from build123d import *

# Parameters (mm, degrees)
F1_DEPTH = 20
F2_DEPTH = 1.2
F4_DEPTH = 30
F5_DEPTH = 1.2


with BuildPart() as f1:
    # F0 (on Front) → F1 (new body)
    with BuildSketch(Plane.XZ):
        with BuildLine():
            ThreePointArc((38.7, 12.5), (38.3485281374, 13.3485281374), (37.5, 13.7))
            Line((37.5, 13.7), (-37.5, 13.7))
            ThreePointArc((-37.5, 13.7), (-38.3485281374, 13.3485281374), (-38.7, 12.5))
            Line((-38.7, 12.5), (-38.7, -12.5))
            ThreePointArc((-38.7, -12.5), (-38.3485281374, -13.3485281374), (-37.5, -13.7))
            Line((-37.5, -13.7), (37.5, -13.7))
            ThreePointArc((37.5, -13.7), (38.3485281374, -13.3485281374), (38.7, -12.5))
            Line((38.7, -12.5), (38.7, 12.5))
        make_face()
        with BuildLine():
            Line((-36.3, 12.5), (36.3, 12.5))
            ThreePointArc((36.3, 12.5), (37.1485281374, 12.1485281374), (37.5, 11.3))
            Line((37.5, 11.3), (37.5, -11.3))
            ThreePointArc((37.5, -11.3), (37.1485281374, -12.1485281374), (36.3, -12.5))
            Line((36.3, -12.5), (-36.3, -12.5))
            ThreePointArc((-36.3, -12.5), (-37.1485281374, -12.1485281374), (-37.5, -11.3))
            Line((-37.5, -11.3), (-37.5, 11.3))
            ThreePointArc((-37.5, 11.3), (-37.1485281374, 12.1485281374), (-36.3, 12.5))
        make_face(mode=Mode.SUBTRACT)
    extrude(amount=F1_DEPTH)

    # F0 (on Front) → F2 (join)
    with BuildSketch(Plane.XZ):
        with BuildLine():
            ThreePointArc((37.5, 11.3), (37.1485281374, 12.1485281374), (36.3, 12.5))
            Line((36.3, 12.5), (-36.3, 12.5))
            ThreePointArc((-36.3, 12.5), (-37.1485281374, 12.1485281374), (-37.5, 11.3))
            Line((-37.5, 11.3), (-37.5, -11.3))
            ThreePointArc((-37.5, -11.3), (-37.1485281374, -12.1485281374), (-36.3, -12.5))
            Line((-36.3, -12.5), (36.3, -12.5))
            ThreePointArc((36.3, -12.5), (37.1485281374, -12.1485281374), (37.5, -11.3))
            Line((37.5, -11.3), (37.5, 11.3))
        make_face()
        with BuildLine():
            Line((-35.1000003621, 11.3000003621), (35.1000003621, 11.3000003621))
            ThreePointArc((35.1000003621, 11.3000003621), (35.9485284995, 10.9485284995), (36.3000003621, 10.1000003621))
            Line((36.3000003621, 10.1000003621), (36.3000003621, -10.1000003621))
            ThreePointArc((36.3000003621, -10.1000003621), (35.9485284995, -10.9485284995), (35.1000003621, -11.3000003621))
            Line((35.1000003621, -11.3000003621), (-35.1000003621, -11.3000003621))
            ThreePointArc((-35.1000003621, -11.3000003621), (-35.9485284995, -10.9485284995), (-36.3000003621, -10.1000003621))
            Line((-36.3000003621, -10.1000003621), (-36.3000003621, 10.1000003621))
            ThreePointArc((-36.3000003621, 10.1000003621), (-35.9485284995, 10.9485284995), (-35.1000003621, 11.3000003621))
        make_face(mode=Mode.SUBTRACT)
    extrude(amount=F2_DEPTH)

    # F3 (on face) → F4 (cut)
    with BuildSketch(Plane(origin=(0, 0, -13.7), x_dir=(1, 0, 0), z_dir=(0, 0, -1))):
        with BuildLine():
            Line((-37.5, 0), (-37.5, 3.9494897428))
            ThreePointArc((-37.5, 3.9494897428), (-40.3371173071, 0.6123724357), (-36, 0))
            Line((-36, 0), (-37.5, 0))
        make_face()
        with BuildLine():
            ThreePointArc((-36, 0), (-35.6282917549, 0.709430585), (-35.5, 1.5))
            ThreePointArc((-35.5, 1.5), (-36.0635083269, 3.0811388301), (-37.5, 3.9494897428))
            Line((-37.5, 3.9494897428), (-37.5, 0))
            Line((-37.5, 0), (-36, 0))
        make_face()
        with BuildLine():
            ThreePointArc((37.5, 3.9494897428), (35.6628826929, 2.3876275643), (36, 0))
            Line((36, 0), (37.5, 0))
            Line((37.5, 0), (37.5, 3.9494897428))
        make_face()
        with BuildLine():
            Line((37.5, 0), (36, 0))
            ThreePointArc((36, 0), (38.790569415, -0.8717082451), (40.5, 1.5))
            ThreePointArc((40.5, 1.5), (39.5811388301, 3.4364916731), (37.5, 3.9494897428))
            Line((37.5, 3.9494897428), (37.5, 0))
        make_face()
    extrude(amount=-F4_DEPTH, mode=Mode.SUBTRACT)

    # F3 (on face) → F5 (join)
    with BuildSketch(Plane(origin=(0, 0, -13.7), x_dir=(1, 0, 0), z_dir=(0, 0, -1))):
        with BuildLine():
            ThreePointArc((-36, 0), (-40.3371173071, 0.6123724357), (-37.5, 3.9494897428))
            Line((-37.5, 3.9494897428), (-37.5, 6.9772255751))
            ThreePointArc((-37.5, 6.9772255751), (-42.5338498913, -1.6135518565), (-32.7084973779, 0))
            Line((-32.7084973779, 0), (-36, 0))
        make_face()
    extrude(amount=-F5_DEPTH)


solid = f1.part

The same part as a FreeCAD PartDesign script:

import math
import FreeCAD as App
import Part
import Sketcher

V = App.Vector
Q = App.Units.Quantity

doc = App.newDocument("Part")
body = doc.addObject("PartDesign::Body", "Body")

sketch1 = body.newObject("Sketcher::SketchObject", "Sketch")
sketch1.AttachmentSupport = (doc.getObject("XZ_Plane"), [""])
sketch1.MapMode = "FlatFace"
sketch1.addGeometry(Part.ArcOfCircle(Part.Circle(V(37.5, 12.5, 0), V(0, 0, 1), 1.2), math.radians(0), math.radians(90)), False)
sketch1.addGeometry(Part.LineSegment(V(37.5, 13.7, 0), V(-37.5, 13.7, 0)), False)
sketch1.addGeometry(Part.ArcOfCircle(Part.Circle(V(-37.5, 12.5, 0), V(0, 0, 1), 1.2), math.radians(90), math.radians(180)), False)
sketch1.addGeometry(Part.LineSegment(V(-38.7, 12.5, 0), V(-38.7, -12.5, 0)), False)
sketch1.addGeometry(Part.ArcOfCircle(Part.Circle(V(-37.5, -12.5, 0), V(0, 0, 1), 1.2), math.radians(180), math.radians(270)), False)
sketch1.addGeometry(Part.LineSegment(V(-37.5, -13.7, 0), V(37.5, -13.7, 0)), False)
sketch1.addGeometry(Part.ArcOfCircle(Part.Circle(V(37.5, -12.5, 0), V(0, 0, 1), 1.2), math.radians(-90), math.radians(0)), False)
sketch1.addGeometry(Part.LineSegment(V(38.7, -12.5, 0), V(38.7, 12.5, 0)), False)
sketch1.addGeometry(Part.ArcOfCircle(Part.Circle(V(-36.3, 11.3, 0), V(0, 0, 1), 1.2), math.radians(90), math.radians(180)), False)
sketch1.addGeometry(Part.LineSegment(V(-36.3, 12.5, 0), V(36.3, 12.5, 0)), False)
sketch1.addGeometry(Part.ArcOfCircle(Part.Circle(V(36.3, 11.3, 0), V(0, 0, 1), 1.2), math.radians(0), math.radians(90)), False)
sketch1.addGeometry(Part.LineSegment(V(37.5, 11.3, 0), V(37.5, -11.3, 0)), False)
sketch1.addGeometry(Part.ArcOfCircle(Part.Circle(V(36.3, -11.3, 0), V(0, 0, 1), 1.2), math.radians(-90), math.radians(0)), False)
sketch1.addGeometry(Part.LineSegment(V(36.3, -12.5, 0), V(-36.3, -12.5, 0)), False)
sketch1.addGeometry(Part.ArcOfCircle(Part.Circle(V(-36.3, -11.3, 0), V(0, 0, 1), 1.2), math.radians(180), math.radians(270)), False)
sketch1.addGeometry(Part.LineSegment(V(-37.5, -11.3, 0), V(-37.5, 11.3, 0)), False)
sketch1.addConstraint(Sketcher.Constraint("Tangent", 0, 2, 1, 1))
sketch1.addConstraint(Sketcher.Constraint("Tangent", 1, 2, 2, 1))
sketch1.addConstraint(Sketcher.Constraint("Tangent", 2, 2, 3, 1))
sketch1.addConstraint(Sketcher.Constraint("Tangent", 3, 2, 4, 1))
sketch1.addConstraint(Sketcher.Constraint("Tangent", 4, 2, 5, 1))
sketch1.addConstraint(Sketcher.Constraint("Tangent", 5, 2, 6, 1))
sketch1.addConstraint(Sketcher.Constraint("Tangent", 6, 2, 7, 1))
sketch1.addConstraint(Sketcher.Constraint("Tangent", 7, 2, 0, 1))
sketch1.addConstraint(Sketcher.Constraint("Tangent", 8, 1, 9, 1))
sketch1.addConstraint(Sketcher.Constraint("Tangent", 9, 2, 10, 2))
sketch1.addConstraint(Sketcher.Constraint("Tangent", 10, 1, 11, 1))
sketch1.addConstraint(Sketcher.Constraint("Tangent", 11, 2, 12, 2))
sketch1.addConstraint(Sketcher.Constraint("Tangent", 12, 1, 13, 1))
sketch1.addConstraint(Sketcher.Constraint("Tangent", 13, 2, 14, 2))
sketch1.addConstraint(Sketcher.Constraint("Tangent", 14, 1, 15, 1))
sketch1.addConstraint(Sketcher.Constraint("Tangent", 15, 2, 8, 2))
sketch1.addConstraint(Sketcher.Constraint("Horizontal", 1))
sketch1.addConstraint(Sketcher.Constraint("Vertical", 3))
sketch1.addConstraint(Sketcher.Constraint("Horizontal", 5))
sketch1.addConstraint(Sketcher.Constraint("Vertical", 7))
sketch1.addConstraint(Sketcher.Constraint("Horizontal", 9))
sketch1.addConstraint(Sketcher.Constraint("Vertical", 11))
sketch1.addConstraint(Sketcher.Constraint("Horizontal", 13))
sketch1.addConstraint(Sketcher.Constraint("Vertical", 15))
sketch1.addConstraint(Sketcher.Constraint("Equal", 0, 2))
sketch1.addConstraint(Sketcher.Constraint("Equal", 2, 4))
sketch1.addConstraint(Sketcher.Constraint("Equal", 4, 6))
sketch1.addConstraint(Sketcher.Constraint("Equal", 6, 8))
sketch1.addConstraint(Sketcher.Constraint("Equal", 8, 10))
sketch1.addConstraint(Sketcher.Constraint("Equal", 10, 12))
sketch1.addConstraint(Sketcher.Constraint("Equal", 12, 14))
sketch1.addConstraint(Sketcher.Constraint("Symmetric", 0, 3, 4, 3, -1, 1))
sketch1.addConstraint(Sketcher.Constraint("Symmetric", 8, 3, 12, 3, -1, 1))
sketch1.addConstraint(Sketcher.Constraint("Horizontal", 7, 2, 8, 1))
sketch1.addConstraint(Sketcher.Constraint("Vertical", 5, 2, 10, 1))
sketch1.addConstraint(Sketcher.Constraint("Radius", 0, Q("1.2 mm")))
sketch1.addConstraint(Sketcher.Constraint("DistanceX", 1, 2, 1, 1, Q("75 mm")))
sketch1.addConstraint(Sketcher.Constraint("DistanceY", 3, 2, 3, 1, Q("25 mm")))
pad1 = body.newObject("PartDesign::Pad", "Pad")
pad1.Profile = sketch1
pad1.Length = 20

sketch2 = body.newObject("Sketcher::SketchObject", "Sketch001")
sketch2.AttachmentSupport = (doc.getObject("XZ_Plane"), [""])
sketch2.MapMode = "FlatFace"
sketch2.addGeometry(Part.ArcOfCircle(Part.Circle(V(36.3, 11.3, 0), V(0, 0, 1), 1.2), math.radians(0), math.radians(90)), False)
sketch2.addGeometry(Part.LineSegment(V(36.3, 12.5, 0), V(-36.3, 12.5, 0)), False)
sketch2.addGeometry(Part.ArcOfCircle(Part.Circle(V(-36.3, 11.3, 0), V(0, 0, 1), 1.2), math.radians(90), math.radians(180)), False)
sketch2.addGeometry(Part.LineSegment(V(-37.5, 11.3, 0), V(-37.5, -11.3, 0)), False)
sketch2.addGeometry(Part.ArcOfCircle(Part.Circle(V(-36.3, -11.3, 0), V(0, 0, 1), 1.2), math.radians(180), math.radians(270)), False)
sketch2.addGeometry(Part.LineSegment(V(-36.3, -12.5, 0), V(36.3, -12.5, 0)), False)
sketch2.addGeometry(Part.ArcOfCircle(Part.Circle(V(36.3, -11.3, 0), V(0, 0, 1), 1.2), math.radians(-90), math.radians(0)), False)
sketch2.addGeometry(Part.LineSegment(V(37.5, -11.3, 0), V(37.5, 11.3, 0)), False)
sketch2.addGeometry(Part.ArcOfCircle(Part.Circle(V(-35.1, 10.1, 0), V(0, 0, 1), 1.2), math.radians(90), math.radians(180)), False)
sketch2.addGeometry(Part.LineSegment(V(-35.1, 11.3, 0), V(35.1, 11.3, 0)), False)
sketch2.addGeometry(Part.ArcOfCircle(Part.Circle(V(35.1, 10.1, 0), V(0, 0, 1), 1.2), math.radians(0), math.radians(90)), False)
sketch2.addGeometry(Part.LineSegment(V(36.3, 10.1, 0), V(36.3, -10.1, 0)), False)
sketch2.addGeometry(Part.ArcOfCircle(Part.Circle(V(35.1, -10.1, 0), V(0, 0, 1), 1.2), math.radians(-90), math.radians(0)), False)
sketch2.addGeometry(Part.LineSegment(V(35.1, -11.3, 0), V(-35.1, -11.3, 0)), False)
sketch2.addGeometry(Part.ArcOfCircle(Part.Circle(V(-35.1, -10.1, 0), V(0, 0, 1), 1.2), math.radians(180), math.radians(270)), False)
sketch2.addGeometry(Part.LineSegment(V(-36.3, -10.1, 0), V(-36.3, 10.1, 0)), False)
sketch2.addConstraint(Sketcher.Constraint("Tangent", 0, 2, 1, 1))
sketch2.addConstraint(Sketcher.Constraint("Tangent", 1, 2, 2, 1))
sketch2.addConstraint(Sketcher.Constraint("Tangent", 2, 2, 3, 1))
sketch2.addConstraint(Sketcher.Constraint("Tangent", 3, 2, 4, 1))
sketch2.addConstraint(Sketcher.Constraint("Tangent", 4, 2, 5, 1))
sketch2.addConstraint(Sketcher.Constraint("Tangent", 5, 2, 6, 1))
sketch2.addConstraint(Sketcher.Constraint("Tangent", 6, 2, 7, 1))
sketch2.addConstraint(Sketcher.Constraint("Tangent", 7, 2, 0, 1))
sketch2.addConstraint(Sketcher.Constraint("Tangent", 8, 1, 9, 1))
sketch2.addConstraint(Sketcher.Constraint("Tangent", 9, 2, 10, 2))
sketch2.addConstraint(Sketcher.Constraint("Tangent", 10, 1, 11, 1))
sketch2.addConstraint(Sketcher.Constraint("Tangent", 11, 2, 12, 2))
sketch2.addConstraint(Sketcher.Constraint("Tangent", 12, 1, 13, 1))
sketch2.addConstraint(Sketcher.Constraint("Tangent", 13, 2, 14, 2))
sketch2.addConstraint(Sketcher.Constraint("Tangent", 14, 1, 15, 1))
sketch2.addConstraint(Sketcher.Constraint("Tangent", 15, 2, 8, 2))
sketch2.addConstraint(Sketcher.Constraint("Horizontal", 1))
sketch2.addConstraint(Sketcher.Constraint("Vertical", 3))
sketch2.addConstraint(Sketcher.Constraint("Horizontal", 5))
sketch2.addConstraint(Sketcher.Constraint("Vertical", 7))
sketch2.addConstraint(Sketcher.Constraint("Horizontal", 9))
sketch2.addConstraint(Sketcher.Constraint("Vertical", 11))
sketch2.addConstraint(Sketcher.Constraint("Horizontal", 13))
sketch2.addConstraint(Sketcher.Constraint("Vertical", 15))
sketch2.addConstraint(Sketcher.Constraint("Equal", 0, 2))
sketch2.addConstraint(Sketcher.Constraint("Equal", 2, 4))
sketch2.addConstraint(Sketcher.Constraint("Equal", 4, 6))
sketch2.addConstraint(Sketcher.Constraint("Equal", 6, 8))
sketch2.addConstraint(Sketcher.Constraint("Equal", 8, 10))
sketch2.addConstraint(Sketcher.Constraint("Equal", 10, 12))
sketch2.addConstraint(Sketcher.Constraint("Equal", 12, 14))
sketch2.addConstraint(Sketcher.Constraint("Symmetric", 0, 3, 4, 3, -1, 1))
sketch2.addConstraint(Sketcher.Constraint("Symmetric", 8, 3, 12, 3, -1, 1))
sketch2.addConstraint(Sketcher.Constraint("Horizontal", 7, 2, 8, 1))
sketch2.addConstraint(Sketcher.Constraint("Vertical", 5, 2, 10, 1))
sketch2.addConstraint(Sketcher.Constraint("Radius", 0, Q("1.2 mm")))
sketch2.addConstraint(Sketcher.Constraint("DistanceX", 1, 2, 1, 1, Q("72.6 mm")))
sketch2.addConstraint(Sketcher.Constraint("DistanceY", 3, 2, 3, 1, Q("22.6 mm")))
pad2 = body.newObject("PartDesign::Pad", "Pad001")
pad2.Profile = sketch2
pad2.Length = 1.2

sketch3 = body.newObject("Sketcher::SketchObject", "Sketch002")
sketch3.AttachmentSupport = (doc.getObject("XY_Plane"), [""])
sketch3.MapMode = "FlatFace"
sketch3.AttachmentOffset = App.Placement(V(0, 0, -13.7), App.Rotation())
sketch3.addGeometry(Part.ArcOfCircle(Part.Circle(V(-38, -1.5, 0), V(0, 0, 1), 2.5), math.radians(37), math.radians(282)), False)
sketch3.addGeometry(Part.ArcOfCircle(Part.Circle(V(-38, -1.5, 0), V(0, 0, 1), 2.5), math.radians(0), math.radians(37)), False)
sketch3.addGeometry(Part.ArcOfCircle(Part.Circle(V(-38, -1.5, 0), V(0, 0, 1), 2.5), math.radians(-78), math.radians(0)), False)
sketch3.addGeometry(Part.ArcOfCircle(Part.Circle(V(38, -1.5, 0), V(0, 0, 1), 2.5), math.radians(143), math.radians(258)), False)
sketch3.addGeometry(Part.ArcOfCircle(Part.Circle(V(38, -1.5, 0), V(0, 0, 1), 2.5), math.radians(0), math.radians(143)), False)
sketch3.addGeometry(Part.ArcOfCircle(Part.Circle(V(38, -1.5, 0), V(0, 0, 1), 2.5), math.radians(-102), math.radians(0)), False)
sketch3.addConstraint(Sketcher.Constraint("Tangent", 0, 1, 1, 2))
sketch3.addConstraint(Sketcher.Constraint("Tangent", 1, 1, 2, 2))
sketch3.addConstraint(Sketcher.Constraint("Tangent", 2, 1, 0, 2))
sketch3.addConstraint(Sketcher.Constraint("Tangent", 3, 1, 4, 2))
sketch3.addConstraint(Sketcher.Constraint("Tangent", 4, 1, 5, 2))
sketch3.addConstraint(Sketcher.Constraint("Tangent", 5, 1, 3, 2))
sketch3.addConstraint(Sketcher.Constraint("Equal", 2, 3))
sketch3.addConstraint(Sketcher.Constraint("Symmetric", 0, 1, 3, 1, -1, 1))
sketch3.addConstraint(Sketcher.Constraint("Symmetric", 0, 3, 3, 3, -2))
sketch3.addConstraint(Sketcher.Constraint("Horizontal", 5, 3, 1, 1))
sketch3.addConstraint(Sketcher.Constraint("Horizontal", 1, 1, 4, 1))
sketch3.addConstraint(Sketcher.Constraint("Horizontal", 2, 1, 5, 1))
sketch3.addConstraint(Sketcher.Constraint("Radius", 0, Q("2.5 mm")))
sketch3.addConstraint(Sketcher.Constraint("DistanceX", 0, 3, -1, 1, Q("38 mm")))
sketch3.addConstraint(Sketcher.Constraint("DistanceX", 0, 1, -1, 1, Q("36 mm")))
sketch3.addConstraint(Sketcher.Constraint("DistanceX", 2, 1, 1, 1, Q("2 mm")))
pocket1 = body.newObject("PartDesign::Pocket", "Pocket")
pocket1.Profile = sketch3
pocket1.Length = 30
pocket1.Reversed = True

sketch4 = body.newObject("Sketcher::SketchObject", "Sketch003")
sketch4.AttachmentSupport = (doc.getObject("XY_Plane"), [""])
sketch4.MapMode = "FlatFace"
sketch4.AttachmentOffset = App.Placement(V(0, 0, -13.7), App.Rotation())
sketch4.addGeometry(Part.ArcOfCircle(Part.Circle(V(-38, -1.5, 0), V(0, 0, 1), 2.5), math.radians(37), math.radians(282)), False)
sketch4.addGeometry(Part.LineSegment(V(-37.5, -3.9, 0), V(-37.5, -7, 0)), False)
sketch4.addGeometry(Part.ArcOfCircle(Part.Circle(V(-38, -1.5, 0), V(0, 0, 1), 5.5), math.radians(16), math.radians(275)), False)
sketch4.addGeometry(Part.LineSegment(V(-32.7, 0, 0), V(-36, 0, 0)), False)
sketch4.addConstraint(Sketcher.Constraint("Coincident", 0, 2, 1, 1))
sketch4.addConstraint(Sketcher.Constraint("Coincident", 1, 2, 2, 2))
sketch4.addConstraint(Sketcher.Constraint("Coincident", 2, 1, 3, 1))
sketch4.addConstraint(Sketcher.Constraint("Coincident", 3, 2, 0, 1))
sketch4.addConstraint(Sketcher.Constraint("Vertical", 1))
sketch4.addConstraint(Sketcher.Constraint("Horizontal", 3))
sketch4.addConstraint(Sketcher.Constraint("Coincident", 2, 3, 0, 3))
sketch4.addConstraint(Sketcher.Constraint("PointOnObject", 2, 1, -1))
sketch4.addConstraint(Sketcher.Constraint("Radius", 0, Q("2.5 mm")))
sketch4.addConstraint(Sketcher.Constraint("Radius", 2, Q("5.5 mm")))
sketch4.addConstraint(Sketcher.Constraint("DistanceX", 0, 3, -1, 1, Q("38 mm")))
sketch4.addConstraint(Sketcher.Constraint("DistanceX", 3, 2, -1, 1, Q("36 mm")))
sketch4.addConstraint(Sketcher.Constraint("DistanceX", 0, 2, -1, 1, Q("37.5 mm")))
pad3 = body.newObject("PartDesign::Pad", "Pad002")
pad3.Profile = sketch4
pad3.Length = 1.2

doc.recompute()
